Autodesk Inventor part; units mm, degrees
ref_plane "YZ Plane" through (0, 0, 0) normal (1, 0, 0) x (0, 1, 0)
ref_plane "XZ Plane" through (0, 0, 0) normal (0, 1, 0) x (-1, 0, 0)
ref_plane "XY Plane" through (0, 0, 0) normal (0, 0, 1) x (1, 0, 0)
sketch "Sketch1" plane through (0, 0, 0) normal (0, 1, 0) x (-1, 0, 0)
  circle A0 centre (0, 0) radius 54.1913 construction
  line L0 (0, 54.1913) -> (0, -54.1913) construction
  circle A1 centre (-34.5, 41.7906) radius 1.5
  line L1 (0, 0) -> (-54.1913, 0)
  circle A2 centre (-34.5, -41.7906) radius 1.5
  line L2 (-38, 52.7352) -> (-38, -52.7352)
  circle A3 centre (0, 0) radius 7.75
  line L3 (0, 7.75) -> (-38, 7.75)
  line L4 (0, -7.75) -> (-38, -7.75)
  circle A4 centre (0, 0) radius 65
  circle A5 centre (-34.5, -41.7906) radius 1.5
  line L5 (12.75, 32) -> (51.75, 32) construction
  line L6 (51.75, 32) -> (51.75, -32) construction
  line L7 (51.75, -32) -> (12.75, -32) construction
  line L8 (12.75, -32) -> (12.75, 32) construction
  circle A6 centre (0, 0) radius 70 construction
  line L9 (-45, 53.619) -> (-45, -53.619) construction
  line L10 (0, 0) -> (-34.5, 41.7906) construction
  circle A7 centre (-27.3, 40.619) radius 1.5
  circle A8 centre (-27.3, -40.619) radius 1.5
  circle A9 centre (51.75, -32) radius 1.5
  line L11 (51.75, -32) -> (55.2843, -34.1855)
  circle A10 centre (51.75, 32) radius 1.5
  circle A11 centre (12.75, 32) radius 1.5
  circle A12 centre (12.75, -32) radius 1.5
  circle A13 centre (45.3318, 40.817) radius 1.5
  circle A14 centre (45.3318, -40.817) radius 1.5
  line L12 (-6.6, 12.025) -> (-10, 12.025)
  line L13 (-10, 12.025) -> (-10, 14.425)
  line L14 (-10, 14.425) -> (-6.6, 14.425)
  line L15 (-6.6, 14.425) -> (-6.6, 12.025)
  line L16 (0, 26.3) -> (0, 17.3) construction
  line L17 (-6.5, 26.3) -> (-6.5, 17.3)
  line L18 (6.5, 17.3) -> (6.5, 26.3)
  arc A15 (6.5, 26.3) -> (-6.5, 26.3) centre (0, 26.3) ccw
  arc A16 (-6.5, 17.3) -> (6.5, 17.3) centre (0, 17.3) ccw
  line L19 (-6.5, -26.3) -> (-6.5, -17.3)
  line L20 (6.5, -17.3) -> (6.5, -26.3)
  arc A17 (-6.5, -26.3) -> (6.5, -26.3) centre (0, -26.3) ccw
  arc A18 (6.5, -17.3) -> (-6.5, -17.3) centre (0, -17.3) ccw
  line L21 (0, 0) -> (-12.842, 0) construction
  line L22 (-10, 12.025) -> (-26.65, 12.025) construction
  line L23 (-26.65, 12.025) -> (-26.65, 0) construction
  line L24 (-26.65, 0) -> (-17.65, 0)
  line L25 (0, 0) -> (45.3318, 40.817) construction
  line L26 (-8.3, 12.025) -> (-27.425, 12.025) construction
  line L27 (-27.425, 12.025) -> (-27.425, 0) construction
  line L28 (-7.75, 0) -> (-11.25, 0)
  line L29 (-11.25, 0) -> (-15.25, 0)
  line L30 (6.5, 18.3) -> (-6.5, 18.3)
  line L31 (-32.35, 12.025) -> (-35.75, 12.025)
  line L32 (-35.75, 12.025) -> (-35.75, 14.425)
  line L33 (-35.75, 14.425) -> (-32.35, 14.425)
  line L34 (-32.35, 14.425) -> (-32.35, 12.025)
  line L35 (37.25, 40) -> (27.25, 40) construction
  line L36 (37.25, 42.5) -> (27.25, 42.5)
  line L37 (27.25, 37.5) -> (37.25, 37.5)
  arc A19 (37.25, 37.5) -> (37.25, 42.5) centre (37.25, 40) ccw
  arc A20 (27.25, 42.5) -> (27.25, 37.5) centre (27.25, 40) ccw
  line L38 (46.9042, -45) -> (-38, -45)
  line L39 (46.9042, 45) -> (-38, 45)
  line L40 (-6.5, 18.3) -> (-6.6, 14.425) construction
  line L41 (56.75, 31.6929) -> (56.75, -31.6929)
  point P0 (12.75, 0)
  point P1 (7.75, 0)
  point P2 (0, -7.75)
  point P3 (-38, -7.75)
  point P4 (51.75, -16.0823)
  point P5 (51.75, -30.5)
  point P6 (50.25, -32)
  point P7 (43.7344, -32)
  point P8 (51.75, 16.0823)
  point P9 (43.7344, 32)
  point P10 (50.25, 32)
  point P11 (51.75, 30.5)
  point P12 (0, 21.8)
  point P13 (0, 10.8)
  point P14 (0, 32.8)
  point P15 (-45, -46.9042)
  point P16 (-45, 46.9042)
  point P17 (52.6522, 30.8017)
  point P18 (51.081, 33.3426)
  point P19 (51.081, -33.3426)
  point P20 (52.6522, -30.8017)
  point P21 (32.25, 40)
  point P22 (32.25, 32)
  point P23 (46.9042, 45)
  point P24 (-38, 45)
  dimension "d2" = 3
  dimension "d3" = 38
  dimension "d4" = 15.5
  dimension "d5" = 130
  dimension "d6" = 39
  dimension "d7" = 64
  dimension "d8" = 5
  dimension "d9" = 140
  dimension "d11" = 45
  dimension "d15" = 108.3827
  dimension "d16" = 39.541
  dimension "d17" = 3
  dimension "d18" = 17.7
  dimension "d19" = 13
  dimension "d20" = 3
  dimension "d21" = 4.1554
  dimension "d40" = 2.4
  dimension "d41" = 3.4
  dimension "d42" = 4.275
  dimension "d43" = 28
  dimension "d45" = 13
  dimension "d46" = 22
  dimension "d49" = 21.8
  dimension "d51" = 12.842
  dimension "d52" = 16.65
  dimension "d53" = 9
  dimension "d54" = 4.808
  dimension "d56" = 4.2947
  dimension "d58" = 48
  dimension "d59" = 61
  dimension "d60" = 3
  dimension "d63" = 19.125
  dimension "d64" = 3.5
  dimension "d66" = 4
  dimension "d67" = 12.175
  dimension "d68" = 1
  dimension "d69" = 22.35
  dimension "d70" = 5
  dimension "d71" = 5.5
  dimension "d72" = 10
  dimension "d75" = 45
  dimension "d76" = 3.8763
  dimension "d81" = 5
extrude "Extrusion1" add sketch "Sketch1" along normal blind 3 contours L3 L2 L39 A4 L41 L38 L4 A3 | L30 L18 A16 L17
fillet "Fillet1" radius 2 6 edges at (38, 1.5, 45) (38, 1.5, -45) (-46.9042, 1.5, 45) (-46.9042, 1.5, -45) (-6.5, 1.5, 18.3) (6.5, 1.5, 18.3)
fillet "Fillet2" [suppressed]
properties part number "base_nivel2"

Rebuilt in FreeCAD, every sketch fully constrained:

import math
import FreeCAD as App
import Part
import Sketcher
Q = App.Units.Quantity


def edges_at(feature, points):
    """Names of the edges that pass closest to the given points."""
    edges = feature.Shape.Edges
    near = lambda p: min(range(len(edges)), key=lambda i: edges[i].distToShape(Part.Vertex(*p))[0])
    return sorted({f"Edge{near(p) + 1}" for p in points})

doc = App.newDocument("Part")
body = doc.addObject("PartDesign::Body", "Body")

# Sketch on XZ plane
sketch1 = body.newObject("Sketcher::SketchObject", "Sketch")
sketch1.AttachmentSupport = (doc.getObject("XZ_Plane"), [""])
sketch1.MapMode = "FlatFace"
sketch1.addGeometry(Part.LineSegment(App.Vector(38, 7.8, 0), App.Vector(0, 7.8, 0)), False)
sketch1.addGeometry(Part.ArcOfCircle(Part.Circle(App.Vector(0, 0, 0), App.Vector(0, 0, 1), 7.8), math.radians(90), math.radians(270)), False)
sketch1.addGeometry(Part.LineSegment(App.Vector(0, -7.8, 0), App.Vector(38, -7.8, 0)), False)
sketch1.addGeometry(Part.LineSegment(App.Vector(38, -7.8, 0), App.Vector(38, -45, 0)), False)
sketch1.addGeometry(Part.LineSegment(App.Vector(38, -45, 0), App.Vector(-46.9, -45, 0)), False)
sketch1.addGeometry(Part.ArcOfCircle(Part.Circle(App.Vector(0, 0, 0), App.Vector(0, 0, 1), 65), math.radians(-148.27), math.radians(-136.19)), False)
sketch1.addGeometry(Part.ArcOfCircle(Part.Circle(App.Vector(0, 0, 0), App.Vector(0, 0, 1), 65), math.radians(-150.82), math.radians(-148.27)), False)
sketch1.addGeometry(Part.LineSegment(App.Vector(-56.8, -31.7, 0), App.Vector(-56.8, 31.7, 0)), False)
sketch1.addGeometry(Part.ArcOfCircle(Part.Circle(App.Vector(0, 0, 0), App.Vector(0, 0, 1), 65), math.radians(136.19), math.radians(150.82)), False)
sketch1.addGeometry(Part.LineSegment(App.Vector(-46.9, 45, 0), App.Vector(38, 45, 0)), False)
sketch1.addGeometry(Part.LineSegment(App.Vector(38, 45, 0), App.Vector(38, 7.8, 0)), False)
sketch1.addGeometry(Part.Circle(App.Vector(34.5, -41.8, 0), App.Vector(0, 0, 1), 1.5), False)
sketch1.addGeometry(Part.Circle(App.Vector(27.3, -40.6, 0), App.Vector(0, 0, 1), 1.5), False)
sketch1.addGeometry(Part.Circle(App.Vector(-45.3, -40.8, 0), App.Vector(0, 0, 1), 1.5), False)
sketch1.addGeometry(Part.Circle(App.Vector(-12.8, -32, 0), App.Vector(0, 0, 1), 1.5), False)
sketch1.addGeometry(Part.ArcOfCircle(Part.Circle(App.Vector(0, -26.3, 0), App.Vector(0, 0, 1), 6.5), math.radians(180), math.radians(360)), False)
sketch1.addGeometry(Part.LineSegment(App.Vector(6.5, -26.3, 0), App.Vector(6.5, -17.3, 0)), False)
sketch1.addGeometry(Part.ArcOfCircle(Part.Circle(App.Vector(0, -17.3, 0), App.Vector(0, 0, 1), 6.5), math.radians(0), math.radians(180)), False)
sketch1.addGeometry(Part.LineSegment(App.Vector(-6.5, -17.3, 0), App.Vector(-6.5, -26.3, 0)), False)
sketch1.addGeometry(Part.Circle(App.Vector(-51.8, -32, 0), App.Vector(0, 0, 1), 1.5), False)
sketch1.addGeometry(Part.LineSegment(App.Vector(32.4, 14.4, 0), App.Vector(32.4, 12, 0)), False)
sketch1.addGeometry(Part.LineSegment(App.Vector(32.4, 12, 0), App.Vector(35.8, 12, 0)), False)
sketch1.addGeometry(Part.LineSegment(App.Vector(35.8, 12, 0), App.Vector(35.8, 14.4, 0)), False)
sketch1.addGeometry(Part.LineSegment(App.Vector(35.8, 14.4, 0), App.Vector(32.4, 14.4, 0)), False)
sketch1.addGeometry(Part.LineSegment(App.Vector(6.6, 14.4, 0), App.Vector(6.6, 12, 0)), False)
sketch1.addGeometry(Part.LineSegment(App.Vector(6.6, 12, 0), App.Vector(10, 12, 0)), False)
sketch1.addGeometry(Part.LineSegment(App.Vector(10, 12, 0), App.Vector(10, 14.4, 0)), False)
sketch1.addGeometry(Part.LineSegment(App.Vector(10, 14.4, 0), App.Vector(6.6, 14.4, 0)), False)
sketch1.addGeometry(Part.Circle(App.Vector(34.5, 41.8, 0), App.Vector(0, 0, 1), 1.5), False)
sketch1.addGeometry(Part.Circle(App.Vector(27.3, 40.6, 0), App.Vector(0, 0, 1), 1.5), False)
sketch1.addGeometry(Part.LineSegment(App.Vector(6.5, 18.3, 0), App.Vector(6.5, 26.3, 0)), False)
sketch1.addGeometry(Part.ArcOfCircle(Part.Circle(App.Vector(0, 26.3, 0), App.Vector(0, 0, 1), 6.5), math.radians(0), math.radians(180)), False)
sketch1.addGeometry(Part.LineSegment(App.Vector(-6.5, 26.3, 0), App.Vector(-6.5, 18.3, 0)), False)
sketch1.addGeometry(Part.LineSegment(App.Vector(-6.5, 18.3, 0), App.Vector(6.5, 18.3, 0)), False)
sketch1.addGeometry(Part.Circle(App.Vector(-12.8, 32, 0), App.Vector(0, 0, 1), 1.5), False)
sketch1.addGeometry(Part.Circle(App.Vector(-51.8, 32, 0), App.Vector(0, 0, 1), 1.5), False)
sketch1.addGeometry(Part.LineSegment(App.Vector(-27.2, 42.5, 0), App.Vector(-37.2, 42.5, 0)), False)
sketch1.addGeometry(Part.ArcOfCircle(Part.Circle(App.Vector(-37.2, 40, 0), App.Vector(0, 0, 1), 2.5), math.radians(90), math.radians(270)), False)
sketch1.addGeometry(Part.LineSegment(App.Vector(-37.2, 37.5, 0), App.Vector(-27.2, 37.5, 0)), False)
sketch1.addGeometry(Part.ArcOfCircle(Part.Circle(App.Vector(-27.2, 40, 0), App.Vector(0, 0, 1), 2.5), math.radians(-90), math.radians(90)), False)
sketch1.addGeometry(Part.Circle(App.Vector(-45.3, 40.8, 0), App.Vector(0, 0, 1), 1.5), False)
sketch1.addConstraint(Sketcher.Constraint("Tangent", 0, 2, 1, 1))
sketch1.addConstraint(Sketcher.Constraint("Tangent", 1, 2, 2, 1))
sketch1.addConstraint(Sketcher.Constraint("Coincident", 2, 2, 3, 1))
sketch1.addConstraint(Sketcher.Constraint("Coincident", 3, 2, 4, 1))
sketch1.addConstraint(Sketcher.Constraint("Coincident", 4, 2, 5, 2))
sketch1.addConstraint(Sketcher.Constraint("Tangent", 5, 1, 6, 2))
sketch1.addConstraint(Sketcher.Constraint("Coincident", 6, 1, 7, 1))
sketch1.addConstraint(Sketcher.Constraint("Coincident", 7, 2, 8, 2))
sketch1.addConstraint(Sketcher.Constraint("Coincident", 8, 1, 9, 1))
sketch1.addConstraint(Sketcher.Constraint("Coincident", 9, 2, 10, 1))
sketch1.addConstraint(Sketcher.Constraint("Coincident", 10, 2, 0, 1))
sketch1.addConstraint(Sketcher.Constraint("Tangent", 15, 2, 16, 1))
sketch1.addConstraint(Sketcher.Constraint("Tangent", 16, 2, 17, 1))
sketch1.addConstraint(Sketcher.Constraint("Tangent", 17, 2, 18, 1))
sketch1.addConstraint(Sketcher.Constraint("Tangent", 18, 2, 15, 1))
sketch1.addConstraint(Sketcher.Constraint("Coincident", 20, 2, 21, 1))
sketch1.addConstraint(Sketcher.Constraint("Coincident", 21, 2, 22, 1))
sketch1.addConstraint(Sketcher.Constraint("Coincident", 22, 2, 23, 1))
sketch1.addConstraint(Sketcher.Constraint("Coincident", 23, 2, 20, 1))
sketch1.addConstraint(Sketcher.Constraint("Coincident", 24, 2, 25, 1))
sketch1.addConstraint(Sketcher.Constraint("Coincident", 25, 2, 26, 1))
sketch1.addConstraint(Sketcher.Constraint("Coincident", 26, 2, 27, 1))
sketch1.addConstraint(Sketcher.Constraint("Coincident", 27, 2, 24, 1))
sketch1.addConstraint(Sketcher.Constraint("Tangent", 30, 2, 31, 1))
sketch1.addConstraint(Sketcher.Constraint("Tangent", 31, 2, 32, 1))
sketch1.addConstraint(Sketcher.Constraint("Coincident", 32, 2, 33, 1))
sketch1.addConstraint(Sketcher.Constraint("Coincident", 33, 2, 30, 1))
sketch1.addConstraint(Sketcher.Constraint("Tangent", 36, 2, 37, 1))
sketch1.addConstraint(Sketcher.Constraint("Tangent", 37, 2, 38, 1))
sketch1.addConstraint(Sketcher.Constraint("Tangent", 38, 2, 39, 1))
sketch1.addConstraint(Sketcher.Constraint("Tangent", 39, 2, 36, 1))
sketch1.addConstraint(Sketcher.Constraint("Horizontal", 0))
sketch1.addConstraint(Sketcher.Constraint("Horizontal", 2))
sketch1.addConstraint(Sketcher.Constraint("Vertical", 3))
sketch1.addConstraint(Sketcher.Constraint("Horizontal", 4))
sketch1.addConstraint(Sketcher.Constraint("Vertical", 7))
sketch1.addConstraint(Sketcher.Constraint("Horizontal", 9))
sketch1.addConstraint(Sketcher.Constraint("Vertical", 10))
sketch1.addConstraint(Sketcher.Constraint("Vertical", 16))
sketch1.addConstraint(Sketcher.Constraint("Vertical", 18))
sketch1.addConstraint(Sketcher.Constraint("Vertical", 20))
sketch1.addConstraint(Sketcher.Constraint("Horizontal", 21))
sketch1.addConstraint(Sketcher.Constraint("Vertical", 22))
sketch1.addConstraint(Sketcher.Constraint("Horizontal", 23))
sketch1.addConstraint(Sketcher.Constraint("Vertical", 24))
sketch1.addConstraint(Sketcher.Constraint("Horizontal", 25))
sketch1.addConstraint(Sketcher.Constraint("Vertical", 26))
sketch1.addConstraint(Sketcher.Constraint("Horizontal", 27))
sketch1.addConstraint(Sketcher.Constraint("Vertical", 30))
sketch1.addConstraint(Sketcher.Constraint("Vertical", 32))
sketch1.addConstraint(Sketcher.Constraint("Horizontal", 33))
sketch1.addConstraint(Sketcher.Constraint("Horizontal", 36))
sketch1.addConstraint(Sketcher.Constraint("Horizontal", 38))
sketch1.addConstraint(Sketcher.Constraint("Coincident", 1, 3, -1, 1))
sketch1.addConstraint(Sketcher.Constraint("Coincident", 5, 3, -1, 1))
sketch1.addConstraint(Sketcher.Constraint("Coincident", 8, 3, -1, 1))
sketch1.addConstraint(Sketcher.Constraint("Equal", 5, 6))
sketch1.addConstraint(Sketcher.Constraint("Equal", 6, 8))
sketch1.addConstraint(Sketcher.Constraint("Equal", 11, 12))
sketch1.addConstraint(Sketcher.Constraint("Equal", 12, 13))
sketch1.addConstraint(Sketcher.Constraint("Equal", 13, 14))
sketch1.addConstraint(Sketcher.Constraint("Equal", 14, 19))
sketch1.addConstraint(Sketcher.Constraint("Equal", 19, 28))
sketch1.addConstraint(Sketcher.Constraint("Equal", 28, 29))
sketch1.addConstraint(Sketcher.Constraint("Equal", 17, 31))
sketch1.addConstraint(Sketcher.Constraint("Equal", 29, 34))
sketch1.addConstraint(Sketcher.Constraint("Equal", 34, 35))
sketch1.addConstraint(Sketcher.Constraint("Equal", 35, 40))
sketch1.addConstraint(Sketcher.Constraint("Symmetric", 15, 3, 31, 3, -1, 1))
sketch1.addConstraint(Sketcher.Constraint("Symmetric", 11, 3, 28, 3, -1))
sketch1.addConstraint(Sketcher.Constraint("Symmetric", 12, 3, 29, 3, -1))
sketch1.addConstraint(Sketcher.Constraint("Symmetric", 14, 3, 34, 3, -1))
sketch1.addConstraint(Sketcher.Constraint("Symmetric", 19, 3, 35, 3, -1))
sketch1.addConstraint(Sketcher.Constraint("Symmetric", 13, 3, 40, 3, -1))
sketch1.addConstraint(Sketcher.Constraint("Symmetric", 3, 2, 9, 2, -1))
sketch1.addConstraint(Sketcher.Constraint("PointOnObject", 15, 3, -2))
sketch1.addConstraint(Sketcher.Constraint("Horizontal", 14, 3, 19, 3))
sketch1.addConstraint(Sketcher.Constraint("Horizontal", 21, 2, 24, 2))
sketch1.addConstraint(Sketcher.Constraint("Horizontal", 23, 2, 26, 2))
sketch1.addConstraint(Sketcher.Constraint("Equal", 23, 25))
sketch1.addConstraint(Sketcher.Constraint("Diameter", 11, Q("3 mm")))
sketch1.addConstraint(Sketcher.Constraint("Radius", 5, Q("65 mm")))
sketch1.addConstraint(Sketcher.Constraint("Radius", 15, Q("6.5 mm")))
sketch1.addConstraint(Sketcher.Constraint("Radius", 37, Q("2.5 mm")))
sketch1.addConstraint(Sketcher.Constraint("DistanceX", 0, 2, 0, 1, Q("38 mm")))
sketch1.addConstraint(Sketcher.Constraint("DistanceX", 36, 2, 36, 1, Q("10 mm")))
sketch1.addConstraint(Sketcher.Constraint("DistanceY", 16, 1, 16, 2, Q("9 mm")))
sketch1.addConstraint(Sketcher.Constraint("Radius", 1, Q("7.75 mm")))
sketch1.addConstraint(Sketcher.Constraint("DistanceX", 21, 1, 21, 2, Q("3.4 mm")))
sketch1.addConstraint(Sketcher.Constraint("DistanceY", 20, 2, 20, 1, Q("2.4 mm")))
sketch1.addConstraint(Sketcher.Constraint("DistanceY", 3, 2, -1, 1, Q("45 mm")))
sketch1.addConstraint(Sketcher.Constraint("DistanceX", -1, 1, 25, 2, Q("10 mm")))
sketch1.addConstraint(Sketcher.Constraint("DistanceX", 19, 3, 14, 3, Q("39 mm")))
sketch1.addConstraint(Sketcher.Constraint("DistanceY", 4, 2, 19, 3, Q("13 mm")))
sketch1.addConstraint(Sketcher.Constraint("DistanceX", 6, 1, 19, 3, Q("5 mm")))
sketch1.addConstraint(Sketcher.Constraint("DistanceY", 37, 3, 8, 1, Q("5 mm")))
sketch1.addConstraint(Sketcher.Constraint("DistanceX", 11, 3, 2, 2, Q("3.5 mm")))
sketch1.addConstraint(Sketcher.Constraint("DistanceY", 30, 1, 30, 2, Q("8 mm")))
sketch1.addConstraint(Sketcher.Constraint("DistanceY", 10, 2, 20, 2, Q("4.275 mm")))
sketch1.addConstraint(Sketcher.Constraint("DistanceX", -1, 1, 12, 3, Q("27.3 mm")))
sketch1.addConstraint(Sketcher.Constraint("DistanceY", 15, 3, -1, 1, Q("26.3 mm")))
sketch1.addConstraint(Sketcher.Constraint("DistanceX", 35, 3, 37, 3, Q("14.5 mm")))
sketch1.addConstraint(Sketcher.Constraint("DistanceX", 14, 3, -1, 1, Q("12.75 mm")))
sketch1.addConstraint(Sketcher.Constraint("DistanceX", -1, 1, 20, 2, Q("32.35 mm")))
sketch1.addConstraint(Sketcher.Constraint("DistanceX", 5, 1, 4, 2, Q("8.38 mm")))
sketch1.addConstraint(Sketcher.Constraint("DistanceY", 12, 3, -1, 1, Q("40.619 mm")))
sketch1.addConstraint(Sketcher.Constraint("DistanceY", 13, 3, -1, 1, Q("40.817 mm")))
sketch1.addConstraint(Sketcher.Constraint("DistanceY", 11, 3, -1, 1, Q("41.7906 mm")))
sketch1.addConstraint(Sketcher.Constraint("DistanceX", 13, 3, -1, 1, Q("45.3318 mm")))
pad1 = body.newObject("PartDesign::Pad", "Pad")
pad1.Profile = sketch1
pad1.Length = 3
pad1.Reversed = True
doc.recompute()

fillet = body.newObject("PartDesign::Fillet", "Fillet")
fillet.Base = (pad1, edges_at(pad1, [
    (38, 1.5, 45),
    (38, 1.5, -45),
    (-46.904, 1.5, 45),
    (-46.904, 1.5, -45),
    (-6.5, 1.5, 18.3),
    (6.5, 1.5, 18.3),
]))
fillet.Radius = 2

doc.recompute()
